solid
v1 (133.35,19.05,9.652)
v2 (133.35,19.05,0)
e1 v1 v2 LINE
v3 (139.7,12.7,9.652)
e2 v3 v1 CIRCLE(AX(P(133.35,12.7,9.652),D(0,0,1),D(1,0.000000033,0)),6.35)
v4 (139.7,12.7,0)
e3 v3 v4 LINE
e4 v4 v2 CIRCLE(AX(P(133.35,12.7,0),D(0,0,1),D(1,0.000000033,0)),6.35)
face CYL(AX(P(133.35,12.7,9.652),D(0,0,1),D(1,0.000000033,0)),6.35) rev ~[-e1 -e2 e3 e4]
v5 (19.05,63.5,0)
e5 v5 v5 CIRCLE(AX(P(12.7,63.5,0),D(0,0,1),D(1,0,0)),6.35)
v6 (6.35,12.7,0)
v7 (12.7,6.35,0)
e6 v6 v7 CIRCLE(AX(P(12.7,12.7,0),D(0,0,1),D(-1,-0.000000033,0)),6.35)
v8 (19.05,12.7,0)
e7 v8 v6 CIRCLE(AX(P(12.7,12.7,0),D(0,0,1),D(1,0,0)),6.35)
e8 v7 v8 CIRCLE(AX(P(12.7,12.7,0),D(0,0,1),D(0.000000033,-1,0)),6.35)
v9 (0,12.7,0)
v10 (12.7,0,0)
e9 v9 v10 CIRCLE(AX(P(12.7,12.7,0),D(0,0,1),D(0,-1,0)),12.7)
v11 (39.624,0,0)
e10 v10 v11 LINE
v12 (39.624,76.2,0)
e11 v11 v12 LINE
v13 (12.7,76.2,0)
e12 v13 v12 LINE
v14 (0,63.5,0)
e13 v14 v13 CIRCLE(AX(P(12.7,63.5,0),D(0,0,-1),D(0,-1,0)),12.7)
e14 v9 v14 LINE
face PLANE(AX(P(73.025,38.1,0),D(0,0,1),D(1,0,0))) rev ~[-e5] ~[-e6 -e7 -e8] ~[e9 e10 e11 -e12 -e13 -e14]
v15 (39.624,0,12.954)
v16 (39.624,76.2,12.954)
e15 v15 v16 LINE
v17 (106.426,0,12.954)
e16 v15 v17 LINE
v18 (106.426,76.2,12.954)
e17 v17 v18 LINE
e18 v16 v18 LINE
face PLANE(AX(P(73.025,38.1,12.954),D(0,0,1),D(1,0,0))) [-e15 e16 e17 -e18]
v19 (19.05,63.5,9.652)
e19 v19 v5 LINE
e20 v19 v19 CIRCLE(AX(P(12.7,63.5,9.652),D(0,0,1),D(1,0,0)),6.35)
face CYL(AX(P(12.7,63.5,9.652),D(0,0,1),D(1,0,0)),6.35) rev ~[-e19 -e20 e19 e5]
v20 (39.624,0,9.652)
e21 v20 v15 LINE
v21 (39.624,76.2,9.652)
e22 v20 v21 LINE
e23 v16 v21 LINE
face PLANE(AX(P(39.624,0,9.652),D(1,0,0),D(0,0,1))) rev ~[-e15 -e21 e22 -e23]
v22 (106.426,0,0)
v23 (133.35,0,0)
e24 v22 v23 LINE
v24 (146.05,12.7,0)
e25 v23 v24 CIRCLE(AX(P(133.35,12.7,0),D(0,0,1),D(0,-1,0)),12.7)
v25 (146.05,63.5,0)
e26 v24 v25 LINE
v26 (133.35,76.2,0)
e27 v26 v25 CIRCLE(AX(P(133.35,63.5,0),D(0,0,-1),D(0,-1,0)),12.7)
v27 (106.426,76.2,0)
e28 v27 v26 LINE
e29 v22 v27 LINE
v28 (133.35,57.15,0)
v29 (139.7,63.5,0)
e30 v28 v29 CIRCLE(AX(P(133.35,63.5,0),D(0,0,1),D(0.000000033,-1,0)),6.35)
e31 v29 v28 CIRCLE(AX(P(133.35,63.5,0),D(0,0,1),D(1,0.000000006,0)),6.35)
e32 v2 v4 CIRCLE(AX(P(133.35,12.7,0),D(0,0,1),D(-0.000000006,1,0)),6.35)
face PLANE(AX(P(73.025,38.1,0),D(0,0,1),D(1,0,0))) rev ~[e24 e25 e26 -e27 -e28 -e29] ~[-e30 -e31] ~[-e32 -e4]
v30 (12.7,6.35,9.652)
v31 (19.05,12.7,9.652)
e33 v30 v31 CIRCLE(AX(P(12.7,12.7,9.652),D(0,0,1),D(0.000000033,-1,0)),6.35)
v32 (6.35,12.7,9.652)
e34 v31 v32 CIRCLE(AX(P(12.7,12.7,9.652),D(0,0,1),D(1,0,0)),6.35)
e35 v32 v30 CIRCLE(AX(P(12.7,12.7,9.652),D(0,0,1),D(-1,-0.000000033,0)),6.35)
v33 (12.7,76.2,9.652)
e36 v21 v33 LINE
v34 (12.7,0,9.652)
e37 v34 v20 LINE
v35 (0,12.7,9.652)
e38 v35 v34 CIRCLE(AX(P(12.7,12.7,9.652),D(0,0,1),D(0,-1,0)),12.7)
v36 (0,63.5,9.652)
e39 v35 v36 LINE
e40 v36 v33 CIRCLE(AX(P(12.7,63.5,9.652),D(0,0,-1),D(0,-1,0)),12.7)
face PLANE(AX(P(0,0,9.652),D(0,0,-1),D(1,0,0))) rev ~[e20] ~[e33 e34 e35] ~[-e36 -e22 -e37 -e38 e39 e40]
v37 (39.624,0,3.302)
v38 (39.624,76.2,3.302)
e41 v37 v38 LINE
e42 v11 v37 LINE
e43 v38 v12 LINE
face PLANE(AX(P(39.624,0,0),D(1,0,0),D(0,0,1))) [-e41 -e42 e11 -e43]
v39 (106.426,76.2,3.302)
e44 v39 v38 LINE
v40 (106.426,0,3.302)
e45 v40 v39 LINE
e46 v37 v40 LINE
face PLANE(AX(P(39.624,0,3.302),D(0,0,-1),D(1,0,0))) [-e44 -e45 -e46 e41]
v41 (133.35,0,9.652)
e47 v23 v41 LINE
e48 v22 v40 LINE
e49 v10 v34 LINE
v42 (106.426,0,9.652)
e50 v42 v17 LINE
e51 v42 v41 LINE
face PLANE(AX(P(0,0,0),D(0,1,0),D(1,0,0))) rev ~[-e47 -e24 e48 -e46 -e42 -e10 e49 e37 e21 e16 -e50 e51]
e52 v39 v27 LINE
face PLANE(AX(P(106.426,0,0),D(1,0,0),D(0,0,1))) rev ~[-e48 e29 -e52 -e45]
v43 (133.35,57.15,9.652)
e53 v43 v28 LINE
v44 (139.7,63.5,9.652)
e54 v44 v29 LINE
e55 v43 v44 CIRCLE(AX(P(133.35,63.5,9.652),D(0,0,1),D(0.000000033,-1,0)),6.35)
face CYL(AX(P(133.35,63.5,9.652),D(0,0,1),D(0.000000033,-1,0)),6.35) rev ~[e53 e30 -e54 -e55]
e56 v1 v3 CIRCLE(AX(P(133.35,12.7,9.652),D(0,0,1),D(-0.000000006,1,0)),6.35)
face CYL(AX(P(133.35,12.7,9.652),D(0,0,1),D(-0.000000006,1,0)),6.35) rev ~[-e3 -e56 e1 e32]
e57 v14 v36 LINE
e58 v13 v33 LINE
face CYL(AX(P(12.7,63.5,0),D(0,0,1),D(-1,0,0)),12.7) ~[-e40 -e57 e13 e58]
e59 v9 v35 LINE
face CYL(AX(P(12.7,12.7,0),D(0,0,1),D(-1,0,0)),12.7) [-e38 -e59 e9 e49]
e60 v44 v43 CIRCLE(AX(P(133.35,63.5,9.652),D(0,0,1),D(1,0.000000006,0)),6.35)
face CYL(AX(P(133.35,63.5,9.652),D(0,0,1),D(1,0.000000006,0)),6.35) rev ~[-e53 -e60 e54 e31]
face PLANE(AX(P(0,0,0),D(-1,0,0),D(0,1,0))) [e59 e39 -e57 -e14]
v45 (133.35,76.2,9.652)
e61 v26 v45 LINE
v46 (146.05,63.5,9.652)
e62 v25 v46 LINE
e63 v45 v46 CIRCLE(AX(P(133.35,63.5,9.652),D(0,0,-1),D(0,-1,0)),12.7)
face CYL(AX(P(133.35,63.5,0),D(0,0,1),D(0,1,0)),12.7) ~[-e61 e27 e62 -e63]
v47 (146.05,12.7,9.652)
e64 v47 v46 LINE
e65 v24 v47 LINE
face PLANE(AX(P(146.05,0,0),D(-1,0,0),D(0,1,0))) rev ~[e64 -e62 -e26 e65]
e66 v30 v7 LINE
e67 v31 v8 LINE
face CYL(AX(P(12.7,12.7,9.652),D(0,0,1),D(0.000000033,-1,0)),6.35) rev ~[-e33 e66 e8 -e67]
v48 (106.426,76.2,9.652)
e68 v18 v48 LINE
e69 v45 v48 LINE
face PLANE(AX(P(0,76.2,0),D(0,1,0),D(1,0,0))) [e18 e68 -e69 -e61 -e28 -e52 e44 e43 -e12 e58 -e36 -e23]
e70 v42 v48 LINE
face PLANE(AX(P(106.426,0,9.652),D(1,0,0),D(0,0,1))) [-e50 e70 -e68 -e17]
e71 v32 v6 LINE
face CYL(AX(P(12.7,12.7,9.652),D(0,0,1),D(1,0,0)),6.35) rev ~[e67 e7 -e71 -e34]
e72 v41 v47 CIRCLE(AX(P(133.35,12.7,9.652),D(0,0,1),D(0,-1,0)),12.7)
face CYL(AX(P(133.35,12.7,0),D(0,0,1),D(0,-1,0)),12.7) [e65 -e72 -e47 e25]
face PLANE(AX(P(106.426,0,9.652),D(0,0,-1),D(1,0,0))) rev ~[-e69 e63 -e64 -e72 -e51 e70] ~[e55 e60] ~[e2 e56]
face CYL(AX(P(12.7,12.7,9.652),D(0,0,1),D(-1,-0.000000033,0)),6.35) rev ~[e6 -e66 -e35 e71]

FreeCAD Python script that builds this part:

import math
import FreeCAD as App
import Part
import Sketcher
from FreeCAD import Vector
Q = App.Units.Quantity


def edges_at(feature, points):
    """Names of the edges that pass closest to the given points."""
    edges = feature.Shape.Edges
    near = lambda p: min(range(len(edges)), key=lambda i: edges[i].distToShape(Part.Vertex(*p))[0])
    return sorted({f"Edge{near(p) + 1}" for p in points})

doc = App.newDocument("Part")
body = doc.addObject("PartDesign::Body", "Body")

# Sketch on XY plane
sketch1 = body.newObject("Sketcher::SketchObject", "Sketch")
sketch1.AttachmentSupport = (doc.getObject("XY_Plane"), [""])
sketch1.MapMode = "FlatFace"
sketch1.addGeometry([
    Part.LineSegment(Vector(0, 76, 0), Vector(0, 0, 0)),
    Part.LineSegment(Vector(0, 0, 0), Vector(146, 0, 0)),
    Part.LineSegment(Vector(146, 0, 0), Vector(146, 76, 0)),
    Part.LineSegment(Vector(146, 76, 0), Vector(0, 76, 0)),
], False)
sketch1.addConstraint([
    Sketcher.Constraint("Coincident", 0, 2, 1, 1),
    Sketcher.Constraint("Coincident", 1, 2, 2, 1),
    Sketcher.Constraint("Coincident", 2, 2, 3, 1),
    Sketcher.Constraint("Coincident", 3, 2, 0, 1),
    Sketcher.Constraint("Vertical", 0),
    Sketcher.Constraint("Horizontal", 1),
    Sketcher.Constraint("Vertical", 2),
    Sketcher.Constraint("Horizontal", 3),
    Sketcher.Constraint("Coincident", 0, 2, -1, 1),
    Sketcher.Constraint("DistanceY", 0, 2, 0, 1, Q("3 in")),
    Sketcher.Constraint("DistanceX", 1, 1, 1, 2, Q("5.75 in")),
])
pad1 = body.newObject("PartDesign::Pad", "Pad")
pad1.Profile = sketch1
pad1.Length = Q("0.51 in")

# Sketch on XZ plane
sketch2 = body.newObject("Sketcher::SketchObject", "Sketch001")
sketch2.AttachmentSupport = (doc.getObject("XZ_Plane"), [""])
sketch2.MapMode = "FlatFace"
sketch2.addGeometry([
    Part.LineSegment(Vector(106.4, 13, 0), Vector(106.4, 9.7, 0)),  # 0
    Part.LineSegment(Vector(106.4, 9.7, 0), Vector(146.1, 9.7, 0)),  # 1
    Part.LineSegment(Vector(146.1, 9.7, 0), Vector(146.1, 13, 0)),  # 2
    Part.LineSegment(Vector(146.1, 13, 0), Vector(106.4, 13, 0)),  # 3
    Part.LineSegment(Vector(0, 13, 0), Vector(0, 9.7, 0)),  # 4
    Part.LineSegment(Vector(0, 9.7, 0), Vector(39.6, 9.7, 0)),  # 5
    Part.LineSegment(Vector(39.6, 9.7, 0), Vector(39.6, 13, 0)),  # 6
    Part.LineSegment(Vector(39.6, 13, 0), Vector(0, 13, 0)),  # 7
], False)
sketch2.addConstraint([
    Sketcher.Constraint("Coincident", 0, 2, 1, 1),
    Sketcher.Constraint("Coincident", 1, 2, 2, 1),
    Sketcher.Constraint("Coincident", 2, 2, 3, 1),
    Sketcher.Constraint("Coincident", 3, 2, 0, 1),
    Sketcher.Constraint("Coincident", 4, 2, 5, 1),
    Sketcher.Constraint("Coincident", 5, 2, 6, 1),
    Sketcher.Constraint("Coincident", 6, 2, 7, 1),
    Sketcher.Constraint("Coincident", 7, 2, 4, 1),
    Sketcher.Constraint("Vertical", 0),
    Sketcher.Constraint("Horizontal", 1),
    Sketcher.Constraint("Vertical", 2),
    Sketcher.Constraint("Horizontal", 3),
    Sketcher.Constraint("Vertical", 4),
    Sketcher.Constraint("Horizontal", 5),
    Sketcher.Constraint("Vertical", 6),
    Sketcher.Constraint("Horizontal", 7),
    Sketcher.Constraint("PointOnObject", 4, 2, -2),
    Sketcher.Constraint("Horizontal", 1, 2, 4, 2),
    Sketcher.Constraint("Horizontal", 3, 2, 6, 2),
    Sketcher.Constraint("Equal", 3, 5),
    Sketcher.Constraint("DistanceX", 1, 1, 1, 2, Q("1.56 in")),
    Sketcher.Constraint("DistanceY", 0, 2, 0, 1, Q("0.13 in")),
    Sketcher.Constraint("DistanceX", -1, 1, 0, 2, Q("4.19 in")),
    Sketcher.Constraint("DistanceY", -1, 1, 0, 2, Q("0.38 in")),
])
pocket1 = body.newObject("PartDesign::Pocket", "Pocket")
pocket1.Profile = sketch2
pocket1.Type = "ThroughAll"

# Sketch on XZ plane
sketch3 = body.newObject("Sketcher::SketchObject", "Sketch002")
sketch3.AttachmentSupport = (doc.getObject("XZ_Plane"), [""])
sketch3.MapMode = "FlatFace"
sketch3.addGeometry([
    Part.LineSegment(Vector(39.6, 3.3, 0), Vector(39.6, 0, 0)),
    Part.LineSegment(Vector(39.6, 0, 0), Vector(106.4, 0, 0)),
    Part.LineSegment(Vector(106.4, 0, 0), Vector(106.4, 3.3, 0)),
    Part.LineSegment(Vector(106.4, 3.3, 0), Vector(39.6, 3.3, 0)),
], False)
sketch3.addConstraint([
    Sketcher.Constraint("Coincident", 0, 2, 1, 1),
    Sketcher.Constraint("Coincident", 1, 2, 2, 1),
    Sketcher.Constraint("Coincident", 2, 2, 3, 1),
    Sketcher.Constraint("Coincident", 3, 2, 0, 1),
    Sketcher.Constraint("Vertical", 0),
    Sketcher.Constraint("Horizontal", 1),
    Sketcher.Constraint("Vertical", 2),
    Sketcher.Constraint("Horizontal", 3),
    Sketcher.Constraint("PointOnObject", 0, 2, -1),
    Sketcher.Constraint("DistanceX", 1, 1, 1, 2, Q("2.63 in")),
    Sketcher.Constraint("DistanceY", 0, 2, 0, 1, Q("0.13 in")),
    Sketcher.Constraint("DistanceX", -1, 1, 0, 2, Q("1.56 in")),
])
pocket2 = body.newObject("PartDesign::Pocket", "Pocket001")
pocket2.Profile = sketch3
pocket2.Type = "ThroughAll"
doc.recompute()

fillet = body.newObject("PartDesign::Fillet", "Fillet")
fillet.Base = (pocket2, edges_at(pocket2, [
    (0, 0, 4.826),
    (0, 76.2, 4.826),
    (146.05, 76.2, 4.826),
    (146.05, 0, 4.826),
]))
fillet.Radius = Q("0.5 in")

# Sketch on XY plane
sketch4 = body.newObject("Sketcher::SketchObject", "Sketch003")
sketch4.AttachmentSupport = (doc.getObject("XY_Plane"), [""])
sketch4.MapMode = "FlatFace"
sketch4.AttachmentOffset = App.Placement(Vector(0, 0, 0.38 * 25.4), App.Rotation())
sketch4.addGeometry([
    Part.ArcOfCircle(Part.Circle(Vector(133, 63, 0), Vector(0, 0, 1), 6), math.radians(0), math.radians(270)),  # 0
    Part.ArcOfCircle(Part.Circle(Vector(133, 64, 0), Vector(0, 0, 1), 6), math.radians(-90), math.radians(0)),  # 1
    Part.ArcOfCircle(Part.Circle(Vector(133, 13, 0), Vector(0, 0, 1), 6), math.radians(0), math.radians(90)),  # 2
    Part.ArcOfCircle(Part.Circle(Vector(133, 13, 0), Vector(0, 0, 1), 6), math.radians(90), math.radians(360)),  # 3
    Part.Circle(Vector(13, 64, 0), Vector(0, 0, 1), 6),  # 4
    Part.ArcOfCircle(Part.Circle(Vector(13, 13, 0), Vector(0, 0, 1), 6), math.radians(-90), math.radians(0)),  # 5
    Part.ArcOfCircle(Part.Circle(Vector(13, 13, 0), Vector(0, 0, 1), 6), math.radians(0), math.radians(180)),  # 6
    Part.ArcOfCircle(Part.Circle(Vector(13, 13, 0), Vector(0, 0, 1), 6), math.radians(-180), math.radians(-90)),  # 7
], False)
sketch4.addConstraint([
    Sketcher.Constraint("Tangent", 0, 1, 1, 2),
    Sketcher.Constraint("Coincident", 1, 1, 0, 2),
    Sketcher.Constraint("Tangent", 2, 1, 3, 2),
    Sketcher.Constraint("Coincident", 3, 1, 2, 2),
    Sketcher.Constraint("Tangent", 5, 2, 6, 1),
    Sketcher.Constraint("Tangent", 6, 2, 7, 1),
    Sketcher.Constraint("Tangent", 7, 2, 5, 1),
    Sketcher.Constraint("Equal", 1, 2),
    Sketcher.Constraint("Equal", 3, 4),
    Sketcher.Constraint("Equal", 4, 5),
    Sketcher.Constraint("Horizontal", 1, 3, 4, 3),
    Sketcher.Constraint("Horizontal", 3, 3, 5, 3),
    Sketcher.Constraint("Horizontal", 4, 3, 0, 1),
    Sketcher.Constraint("Horizontal", 7, 3, 2, 1),
    Sketcher.Constraint("Horizontal", 2, 1, 5, 2),
    Sketcher.Constraint("Horizontal", 5, 2, 6, 2),
    Sketcher.Constraint("Vertical", 1, 3, 2, 3),
    Sketcher.Constraint("Vertical", 4, 3, 5, 3),
    Sketcher.Constraint("Vertical", 3, 3, 1, 1),
    Sketcher.Constraint("Vertical", 1, 1, 3, 1),
    Sketcher.Constraint("Vertical", 6, 3, 7, 2),
    Sketcher.Constraint("Diameter", 4, Q("0.5 in")),
    Sketcher.Constraint("DistanceY", 2, 3, 0, 3, Q("2 in")),
    Sketcher.Constraint("DistanceX", 4, 3, 0, 1, Q("5 in")),
    Sketcher.Constraint("DistanceY", -1, 1, 0, 3, Q("2.5 in")),
    Sketcher.Constraint("DistanceX", -1, 1, 4, 3, Q("0.5 in")),
])
pocket3 = body.newObject("PartDesign::Pocket", "Pocket002")
pocket3.Profile = sketch4
pocket3.Type = "ThroughAll"

doc.recompute()
